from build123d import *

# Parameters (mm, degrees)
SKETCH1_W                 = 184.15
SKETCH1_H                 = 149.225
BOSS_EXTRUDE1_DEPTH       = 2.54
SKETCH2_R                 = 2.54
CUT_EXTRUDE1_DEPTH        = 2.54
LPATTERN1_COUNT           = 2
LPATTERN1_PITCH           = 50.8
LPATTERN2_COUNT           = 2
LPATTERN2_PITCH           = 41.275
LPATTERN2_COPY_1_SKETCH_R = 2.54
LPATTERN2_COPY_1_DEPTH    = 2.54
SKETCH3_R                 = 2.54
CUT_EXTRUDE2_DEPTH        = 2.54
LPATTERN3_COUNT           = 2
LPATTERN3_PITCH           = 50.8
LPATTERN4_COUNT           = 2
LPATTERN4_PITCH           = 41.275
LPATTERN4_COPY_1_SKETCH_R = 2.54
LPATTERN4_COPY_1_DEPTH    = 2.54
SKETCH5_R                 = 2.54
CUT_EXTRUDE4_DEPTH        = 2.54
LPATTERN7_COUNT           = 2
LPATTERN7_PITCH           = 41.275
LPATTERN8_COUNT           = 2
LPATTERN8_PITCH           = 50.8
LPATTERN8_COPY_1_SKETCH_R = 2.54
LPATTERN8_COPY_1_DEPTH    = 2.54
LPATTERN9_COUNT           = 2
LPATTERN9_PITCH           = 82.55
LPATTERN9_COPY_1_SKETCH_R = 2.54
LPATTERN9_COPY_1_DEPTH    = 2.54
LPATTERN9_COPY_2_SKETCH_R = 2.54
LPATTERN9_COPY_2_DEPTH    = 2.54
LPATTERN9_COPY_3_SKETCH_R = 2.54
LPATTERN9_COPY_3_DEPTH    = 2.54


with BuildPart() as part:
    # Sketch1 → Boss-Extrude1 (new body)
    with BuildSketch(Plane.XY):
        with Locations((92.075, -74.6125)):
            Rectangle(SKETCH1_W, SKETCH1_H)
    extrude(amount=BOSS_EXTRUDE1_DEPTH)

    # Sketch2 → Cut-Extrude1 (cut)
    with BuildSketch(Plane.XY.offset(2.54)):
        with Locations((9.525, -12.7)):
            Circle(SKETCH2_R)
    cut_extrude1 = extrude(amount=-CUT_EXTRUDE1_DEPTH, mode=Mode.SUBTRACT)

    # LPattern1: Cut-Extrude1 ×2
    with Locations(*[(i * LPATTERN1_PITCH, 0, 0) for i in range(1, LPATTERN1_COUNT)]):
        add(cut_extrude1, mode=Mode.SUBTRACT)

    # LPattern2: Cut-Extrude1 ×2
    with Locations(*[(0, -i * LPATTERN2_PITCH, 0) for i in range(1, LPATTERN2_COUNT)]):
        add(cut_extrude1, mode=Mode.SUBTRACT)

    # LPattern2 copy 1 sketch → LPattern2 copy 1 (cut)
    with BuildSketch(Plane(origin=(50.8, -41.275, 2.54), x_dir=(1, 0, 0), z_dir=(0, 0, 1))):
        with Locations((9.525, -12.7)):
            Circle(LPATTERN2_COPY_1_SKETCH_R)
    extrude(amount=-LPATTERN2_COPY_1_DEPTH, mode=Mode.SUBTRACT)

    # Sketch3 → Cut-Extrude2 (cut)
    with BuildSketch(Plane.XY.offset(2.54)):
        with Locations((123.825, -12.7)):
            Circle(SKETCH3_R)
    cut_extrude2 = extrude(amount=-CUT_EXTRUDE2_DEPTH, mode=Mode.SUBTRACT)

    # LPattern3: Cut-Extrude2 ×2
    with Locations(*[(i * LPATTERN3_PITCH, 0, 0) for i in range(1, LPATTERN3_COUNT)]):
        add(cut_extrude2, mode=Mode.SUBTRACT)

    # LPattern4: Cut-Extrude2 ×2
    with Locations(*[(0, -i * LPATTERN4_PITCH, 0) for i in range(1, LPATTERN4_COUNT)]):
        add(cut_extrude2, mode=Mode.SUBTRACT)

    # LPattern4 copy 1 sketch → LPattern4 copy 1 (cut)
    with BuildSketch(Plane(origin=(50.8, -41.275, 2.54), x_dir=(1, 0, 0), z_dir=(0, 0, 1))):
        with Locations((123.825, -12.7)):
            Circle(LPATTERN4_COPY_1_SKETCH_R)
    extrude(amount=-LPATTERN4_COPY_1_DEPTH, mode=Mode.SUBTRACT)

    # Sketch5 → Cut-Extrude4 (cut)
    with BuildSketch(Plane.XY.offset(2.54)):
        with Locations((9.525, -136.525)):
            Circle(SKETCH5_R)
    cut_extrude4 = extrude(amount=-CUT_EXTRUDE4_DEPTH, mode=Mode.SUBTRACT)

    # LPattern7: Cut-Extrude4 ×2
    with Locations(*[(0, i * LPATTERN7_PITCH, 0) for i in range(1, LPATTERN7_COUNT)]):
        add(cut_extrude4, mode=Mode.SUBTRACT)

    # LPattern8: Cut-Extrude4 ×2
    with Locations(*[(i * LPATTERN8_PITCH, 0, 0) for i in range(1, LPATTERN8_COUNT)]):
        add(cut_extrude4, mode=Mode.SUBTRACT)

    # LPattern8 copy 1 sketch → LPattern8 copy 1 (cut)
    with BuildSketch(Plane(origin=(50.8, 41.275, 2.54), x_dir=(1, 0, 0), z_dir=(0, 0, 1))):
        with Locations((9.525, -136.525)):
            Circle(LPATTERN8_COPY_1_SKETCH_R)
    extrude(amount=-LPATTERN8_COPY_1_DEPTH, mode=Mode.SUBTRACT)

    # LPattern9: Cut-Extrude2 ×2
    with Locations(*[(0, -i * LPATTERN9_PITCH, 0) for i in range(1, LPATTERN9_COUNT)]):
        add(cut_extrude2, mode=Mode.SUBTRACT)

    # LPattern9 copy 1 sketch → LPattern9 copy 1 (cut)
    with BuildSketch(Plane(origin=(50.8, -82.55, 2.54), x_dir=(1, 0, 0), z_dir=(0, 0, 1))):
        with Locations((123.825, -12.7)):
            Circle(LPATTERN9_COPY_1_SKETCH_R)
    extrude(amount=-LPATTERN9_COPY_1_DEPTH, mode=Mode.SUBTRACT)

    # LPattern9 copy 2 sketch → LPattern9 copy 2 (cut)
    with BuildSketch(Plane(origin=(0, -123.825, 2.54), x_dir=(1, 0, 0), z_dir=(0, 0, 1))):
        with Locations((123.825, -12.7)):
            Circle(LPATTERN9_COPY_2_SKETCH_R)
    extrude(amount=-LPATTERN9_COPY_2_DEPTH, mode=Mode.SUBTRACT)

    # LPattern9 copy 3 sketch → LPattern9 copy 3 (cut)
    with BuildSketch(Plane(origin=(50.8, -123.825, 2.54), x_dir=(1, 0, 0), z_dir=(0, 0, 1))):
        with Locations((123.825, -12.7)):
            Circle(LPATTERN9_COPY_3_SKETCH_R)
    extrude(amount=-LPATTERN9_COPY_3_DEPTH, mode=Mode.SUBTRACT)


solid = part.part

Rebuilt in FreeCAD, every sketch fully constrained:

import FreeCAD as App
import Part
import Sketcher
from FreeCAD import Vector
Q = App.Units.Quantity

doc = App.newDocument("Part")
body = doc.addObject("PartDesign::Body", "Body")

# Sketch on XY plane
sketch1 = body.newObject("Sketcher::SketchObject", "Sketch")
sketch1.AttachmentSupport = (doc.getObject("XY_Plane"), [""])
sketch1.MapMode = "FlatFace"
sketch1.addGeometry([
    Part.LineSegment(Vector(0, 0, 0), Vector(0, -149, 0)),
    Part.LineSegment(Vector(0, -149, 0), Vector(184, -149, 0)),
    Part.LineSegment(Vector(184, -149, 0), Vector(184, 0, 0)),
    Part.LineSegment(Vector(184, 0, 0), Vector(0, 0, 0)),
], False)
sketch1.addConstraint([
    Sketcher.Constraint("Coincident", 0, 2, 1, 1),
    Sketcher.Constraint("Coincident", 1, 2, 2, 1),
    Sketcher.Constraint("Coincident", 2, 2, 3, 1),
    Sketcher.Constraint("Coincident", 3, 2, 0, 1),
    Sketcher.Constraint("Vertical", 0),
    Sketcher.Constraint("Horizontal", 1),
    Sketcher.Constraint("Vertical", 2),
    Sketcher.Constraint("Horizontal", 3),
    Sketcher.Constraint("Coincident", 3, 2, -1, 1),
    Sketcher.Constraint("DistanceX", 1, 1, 1, 2, Q("7.25 in")),
    Sketcher.Constraint("DistanceY", 0, 2, 0, 1, Q("5.875 in")),
])
pad1 = body.newObject("PartDesign::Pad", "Pad")
pad1.Profile = sketch1
pad1.Length = Q("0.1 in")

# Sketch on XY plane
sketch2 = body.newObject("Sketcher::SketchObject", "Sketch001")
sketch2.AttachmentSupport = (doc.getObject("XY_Plane"), [""])
sketch2.MapMode = "FlatFace"
sketch2.AttachmentOffset = App.Placement(Vector(0, 0, 0.1 * 25.4), App.Rotation())
sketch2.addGeometry(Part.Circle(Vector(9.5, -12.7, 0), Vector(0, 0, 1), 2.5), False)
sketch2.addConstraint([
    Sketcher.Constraint("Diameter", 0, Q("0.2 in")),
    Sketcher.Constraint("DistanceY", 0, 3, -1, 1, Q("0.5 in")),
    Sketcher.Constraint("DistanceX", -1, 1, 0, 3, Q("0.375 in")),
])
pocket1 = body.newObject("PartDesign::Pocket", "Pocket")
pocket1.Profile = sketch2
pocket1.Length = Q("0.1 in")
doc.recompute()

linearpattern = body.newObject("PartDesign::LinearPattern", "LinearPattern")
linearpattern.Originals = [pocket1]
linearpattern.Direction = (doc.getObject("X_Axis"), [""])
linearpattern.Mode = "offset"
linearpattern.Offset = Q("2 in")
linearpattern.Occurrences = 2
body.Tip = linearpattern
doc.recompute()

linearpattern2 = body.newObject("PartDesign::LinearPattern", "LinearPattern001")
linearpattern2.Originals = [pocket1]
linearpattern2.Direction = (doc.getObject("Y_Axis"), [""])
linearpattern2.Mode = "offset"
linearpattern2.Offset = Q("1.625 in")
linearpattern2.Occurrences = 2
linearpattern2.Reversed = True
body.Tip = linearpattern2

# Sketch on XY plane
sketch3 = body.newObject("Sketcher::SketchObject", "Sketch002")
sketch3.AttachmentSupport = (doc.getObject("XY_Plane"), [""])
sketch3.MapMode = "FlatFace"
sketch3.AttachmentOffset = App.Placement(Vector(0, 0, 0.1 * 25.4), App.Rotation())
sketch3.addGeometry(Part.Circle(Vector(60.3, -54, 0), Vector(0, 0, 1), 2.5), False)
sketch3.addConstraint([
    Sketcher.Constraint("Diameter", 0, Q("0.2 in")),
    Sketcher.Constraint("DistanceX", -1, 1, 0, 3, Q("2.375 in")),
    Sketcher.Constraint("DistanceY", 0, 3, -1, 1, Q("2.125 in")),
])
pocket2 = body.newObject("PartDesign::Pocket", "Pocket001")
pocket2.Profile = sketch3
pocket2.Length = Q("0.1 in")

# Sketch on XY plane
sketch4 = body.newObject("Sketcher::SketchObject", "Sketch003")
sketch4.AttachmentSupport = (doc.getObject("XY_Plane"), [""])
sketch4.MapMode = "FlatFace"
sketch4.AttachmentOffset = App.Placement(Vector(0, 0, 0.1 * 25.4), App.Rotation())
sketch4.addGeometry(Part.Circle(Vector(123.8, -12.7, 0), Vector(0, 0, 1), 2.5), False)
sketch4.addConstraint([
    Sketcher.Constraint("Diameter", 0, Q("0.2 in")),
    Sketcher.Constraint("DistanceY", 0, 3, -1, 1, Q("0.5 in")),
    Sketcher.Constraint("DistanceX", -1, 1, 0, 3, Q("4.875 in")),
])
pocket3 = body.newObject("PartDesign::Pocket", "Pocket002")
pocket3.Profile = sketch4
pocket3.Length = Q("0.1 in")
doc.recompute()

linearpattern3 = body.newObject("PartDesign::LinearPattern", "LinearPattern002")
linearpattern3.Originals = [pocket3]
linearpattern3.Direction = (doc.getObject("X_Axis"), [""])
linearpattern3.Mode = "offset"
linearpattern3.Offset = Q("2 in")
linearpattern3.Occurrences = 2
body.Tip = linearpattern3
doc.recompute()

linearpattern4 = body.newObject("PartDesign::LinearPattern", "LinearPattern003")
linearpattern4.Originals = [pocket3]
linearpattern4.Direction = (doc.getObject("Y_Axis"), [""])
linearpattern4.Mode = "offset"
linearpattern4.Offset = Q("1.625 in")
linearpattern4.Occurrences = 2
linearpattern4.Reversed = True
body.Tip = linearpattern4

# Sketch on XY plane
sketch5 = body.newObject("Sketcher::SketchObject", "Sketch004")
sketch5.AttachmentSupport = (doc.getObject("XY_Plane"), [""])
sketch5.MapMode = "FlatFace"
sketch5.AttachmentOffset = App.Placement(Vector(0, 0, 0.1 * 25.4), App.Rotation())
sketch5.addGeometry(Part.Circle(Vector(174.6, -54, 0), Vector(0, 0, 1), 2.5), False)
sketch5.addConstraint([
    Sketcher.Constraint("Diameter", 0, Q("0.2 in")),
    Sketcher.Constraint("DistanceX", -1, 1, 0, 3, Q("6.875 in")),
    Sketcher.Constraint("DistanceY", 0, 3, -1, 1, Q("2.125 in")),
])
pocket4 = body.newObject("PartDesign::Pocket", "Pocket003")
pocket4.Profile = sketch5
pocket4.Length = Q("0.1 in")

# Sketch on XY plane
sketch6 = body.newObject("Sketcher::SketchObject", "Sketch005")
sketch6.AttachmentSupport = (doc.getObject("XY_Plane"), [""])
sketch6.MapMode = "FlatFace"
sketch6.AttachmentOffset = App.Placement(Vector(0, 0, 0.1 * 25.4), App.Rotation())
sketch6.addGeometry(Part.Circle(Vector(9.5, -136.5, 0), Vector(0, 0, 1), 2.5), False)
sketch6.addConstraint([
    Sketcher.Constraint("Diameter", 0, Q("0.2 in")),
    Sketcher.Constraint("DistanceX", -1, 1, 0, 3, Q("0.375 in")),
    Sketcher.Constraint("DistanceY", 0, 3, -1, 1, Q("5.375 in")),
])
pocket5 = body.newObject("PartDesign::Pocket", "Pocket004")
pocket5.Profile = sketch6
pocket5.Length = Q("0.1 in")
doc.recompute()

linearpattern5 = body.newObject("PartDesign::LinearPattern", "LinearPattern004")
linearpattern5.Originals = [pocket5]
linearpattern5.Direction = (doc.getObject("Y_Axis"), [""])
linearpattern5.Mode = "offset"
linearpattern5.Offset = Q("1.625 in")
linearpattern5.Occurrences = 2
body.Tip = linearpattern5
doc.recompute()

linearpattern6 = body.newObject("PartDesign::LinearPattern", "LinearPattern005")
linearpattern6.Originals = [pocket5]
linearpattern6.Direction = (doc.getObject("X_Axis"), [""])
linearpattern6.Mode = "offset"
linearpattern6.Offset = Q("2 in")
linearpattern6.Occurrences = 2
body.Tip = linearpattern6

# Sketch on XY plane
sketch7 = body.newObject("Sketcher::SketchObject", "Sketch006")
sketch7.AttachmentSupport = (doc.getObject("XY_Plane"), [""])
sketch7.MapMode = "FlatFace"
sketch7.AttachmentOffset = App.Placement(Vector(0, 0, 0.1 * 25.4), App.Rotation())
sketch7.addGeometry(Part.Circle(Vector(60.3, -95.2, 0), Vector(0, 0, 1), 2.5), False)
sketch7.addConstraint([
    Sketcher.Constraint("Diameter", 0, Q("0.2 in")),
    Sketcher.Constraint("DistanceY", 0, 3, -1, 1, Q("3.75 in")),
    Sketcher.Constraint("DistanceX", -1, 1, 0, 3, Q("2.375 in")),
])
pocket6 = body.newObject("PartDesign::Pocket", "Pocket005")
pocket6.Profile = sketch7
pocket6.Length = Q("0.1 in")
doc.recompute()

linearpattern7 = body.newObject("PartDesign::LinearPattern", "LinearPattern006")
linearpattern7.Originals = [pocket3]
linearpattern7.Direction = (doc.getObject("Y_Axis"), [""])
linearpattern7.Mode = "offset"
linearpattern7.Offset = Q("3.25 in")
linearpattern7.Occurrences = 2
linearpattern7.Reversed = True
body.Tip = linearpattern7

# Sketch on XY plane
sketch8 = body.newObject("Sketcher::SketchObject", "Sketch007")
sketch8.AttachmentSupport = (doc.getObject("XY_Plane"), [""])
sketch8.MapMode = "FlatFace"
sketch8.AttachmentOffset = App.Placement(Vector(0, 0, 0.1 * 25.4), App.Rotation())
sketch8.addGeometry(Part.Circle(Vector(174.6, -95.2, 0), Vector(0, 0, 1), 2.5), False)
sketch8.addConstraint([
    Sketcher.Constraint("Diameter", 0, Q("0.2 in")),
    Sketcher.Constraint("DistanceY", 0, 3, -1, 1, Q("3.75 in")),
    Sketcher.Constraint("DistanceX", -1, 1, 0, 3, Q("6.875 in")),
])
pocket7 = body.newObject("PartDesign::Pocket", "Pocket006")
pocket7.Profile = sketch8
pocket7.Length = Q("0.1 in")

# Sketch on XY plane
sketch9 = body.newObject("Sketcher::SketchObject", "Sketch008")
sketch9.AttachmentSupport = (doc.getObject("XY_Plane"), [""])
sketch9.MapMode = "FlatFace"
sketch9.AttachmentOffset = App.Placement(Vector(0, 0, 0.1 * 25.4), App.Rotation())
sketch9.addGeometry(Part.Circle(Vector(123.8, -136.5, 0), Vector(0, 0, 1), 2.5), False)
sketch9.addConstraint([
    Sketcher.Constraint("Diameter", 0, Q("0.2 in")),
    Sketcher.Constraint("DistanceX", -1, 1, 0, 3, Q("4.875 in")),
    Sketcher.Constraint("DistanceY", 0, 3, -1, 1, Q("5.375 in")),
])
pocket8 = body.newObject("PartDesign::Pocket", "Pocket007")
pocket8.Profile = sketch9
pocket8.Length = Q("0.1 in")

# Sketch on XY plane
sketch10 = body.newObject("Sketcher::SketchObject", "Sketch009")
sketch10.AttachmentSupport = (doc.getObject("XY_Plane"), [""])
sketch10.MapMode = "FlatFace"
sketch10.AttachmentOffset = App.Placement(Vector(0, 0, 0.1 * 25.4), App.Rotation())
sketch10.addGeometry(Part.Circle(Vector(174.6, -136.5, 0), Vector(0, 0, 1), 2.5), False)
sketch10.addConstraint([
    Sketcher.Constraint("Diameter", 0, Q("0.2 in")),
    Sketcher.Constraint("DistanceX", -1, 1, 0, 3, Q("6.875 in")),
    Sketcher.Constraint("DistanceY", 0, 3, -1, 1, Q("5.375 in")),
])
pocket9 = body.newObject("PartDesign::Pocket", "Pocket008")
pocket9.Profile = sketch10
pocket9.Length = Q("0.1 in")

doc.recompute()
